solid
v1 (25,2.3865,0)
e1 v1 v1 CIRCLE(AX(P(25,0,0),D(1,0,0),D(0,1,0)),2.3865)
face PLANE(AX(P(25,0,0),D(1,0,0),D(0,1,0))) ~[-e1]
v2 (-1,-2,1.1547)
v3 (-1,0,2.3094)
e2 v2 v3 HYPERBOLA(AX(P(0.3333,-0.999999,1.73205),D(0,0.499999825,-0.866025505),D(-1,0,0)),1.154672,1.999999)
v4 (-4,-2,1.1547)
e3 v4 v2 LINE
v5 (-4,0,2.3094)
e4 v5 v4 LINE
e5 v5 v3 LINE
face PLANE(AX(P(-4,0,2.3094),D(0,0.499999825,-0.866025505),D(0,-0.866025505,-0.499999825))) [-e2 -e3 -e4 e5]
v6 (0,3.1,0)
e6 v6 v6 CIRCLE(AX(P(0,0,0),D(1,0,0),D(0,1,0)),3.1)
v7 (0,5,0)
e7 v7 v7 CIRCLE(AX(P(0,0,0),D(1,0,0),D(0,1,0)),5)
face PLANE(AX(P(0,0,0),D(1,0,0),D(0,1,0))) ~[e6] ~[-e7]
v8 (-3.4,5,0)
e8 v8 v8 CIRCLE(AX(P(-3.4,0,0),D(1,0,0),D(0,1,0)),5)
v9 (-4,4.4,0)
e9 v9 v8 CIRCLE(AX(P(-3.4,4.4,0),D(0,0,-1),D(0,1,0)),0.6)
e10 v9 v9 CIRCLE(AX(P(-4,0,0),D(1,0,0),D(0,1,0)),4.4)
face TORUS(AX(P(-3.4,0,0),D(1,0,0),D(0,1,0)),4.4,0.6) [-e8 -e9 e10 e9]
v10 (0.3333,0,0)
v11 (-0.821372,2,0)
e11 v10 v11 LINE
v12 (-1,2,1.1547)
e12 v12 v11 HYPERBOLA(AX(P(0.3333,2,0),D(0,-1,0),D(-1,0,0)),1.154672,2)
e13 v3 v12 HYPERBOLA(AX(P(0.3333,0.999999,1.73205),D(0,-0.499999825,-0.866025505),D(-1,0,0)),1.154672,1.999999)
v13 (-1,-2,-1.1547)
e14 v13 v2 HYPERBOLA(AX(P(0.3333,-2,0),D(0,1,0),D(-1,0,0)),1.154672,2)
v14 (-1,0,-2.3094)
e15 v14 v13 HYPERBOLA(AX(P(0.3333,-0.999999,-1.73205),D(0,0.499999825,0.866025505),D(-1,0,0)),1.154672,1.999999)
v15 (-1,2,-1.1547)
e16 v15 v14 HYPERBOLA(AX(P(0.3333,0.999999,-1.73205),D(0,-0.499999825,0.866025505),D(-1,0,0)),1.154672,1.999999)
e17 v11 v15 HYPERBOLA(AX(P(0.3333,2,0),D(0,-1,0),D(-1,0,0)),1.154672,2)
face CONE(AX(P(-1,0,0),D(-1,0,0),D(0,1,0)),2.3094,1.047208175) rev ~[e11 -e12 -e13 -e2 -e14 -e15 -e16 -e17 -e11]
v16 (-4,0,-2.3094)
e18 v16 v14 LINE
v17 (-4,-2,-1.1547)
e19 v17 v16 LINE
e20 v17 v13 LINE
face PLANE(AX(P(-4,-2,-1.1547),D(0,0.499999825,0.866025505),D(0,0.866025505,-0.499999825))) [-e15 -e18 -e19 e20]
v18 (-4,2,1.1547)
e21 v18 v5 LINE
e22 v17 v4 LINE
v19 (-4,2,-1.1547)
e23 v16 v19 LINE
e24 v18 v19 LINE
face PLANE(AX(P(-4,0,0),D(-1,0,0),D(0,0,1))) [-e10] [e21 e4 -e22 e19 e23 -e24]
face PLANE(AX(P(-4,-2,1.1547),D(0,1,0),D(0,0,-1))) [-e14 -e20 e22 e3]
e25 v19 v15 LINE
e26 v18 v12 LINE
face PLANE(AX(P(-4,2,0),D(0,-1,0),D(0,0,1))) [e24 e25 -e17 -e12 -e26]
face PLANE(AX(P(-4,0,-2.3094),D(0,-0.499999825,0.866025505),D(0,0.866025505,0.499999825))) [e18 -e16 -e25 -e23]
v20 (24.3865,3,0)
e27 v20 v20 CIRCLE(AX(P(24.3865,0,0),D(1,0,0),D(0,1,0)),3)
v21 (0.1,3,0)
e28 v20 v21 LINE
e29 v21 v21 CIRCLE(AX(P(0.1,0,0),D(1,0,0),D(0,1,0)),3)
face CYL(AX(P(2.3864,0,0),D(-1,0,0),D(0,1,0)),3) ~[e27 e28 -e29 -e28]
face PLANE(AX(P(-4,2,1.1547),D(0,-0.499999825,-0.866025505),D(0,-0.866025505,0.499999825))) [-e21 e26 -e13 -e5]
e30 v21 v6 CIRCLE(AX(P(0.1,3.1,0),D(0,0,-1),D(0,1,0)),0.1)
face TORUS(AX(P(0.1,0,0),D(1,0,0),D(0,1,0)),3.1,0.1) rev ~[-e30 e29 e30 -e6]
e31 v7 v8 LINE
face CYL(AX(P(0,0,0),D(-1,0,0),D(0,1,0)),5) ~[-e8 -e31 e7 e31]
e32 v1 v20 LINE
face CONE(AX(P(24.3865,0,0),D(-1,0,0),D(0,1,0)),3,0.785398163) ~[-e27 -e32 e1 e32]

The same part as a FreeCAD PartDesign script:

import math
import FreeCAD as App
import Part
import Sketcher
Q = App.Units.Quantity


def edges_at(feature, points):
    """Names of the edges that pass closest to the given points."""
    edges = feature.Shape.Edges
    near = lambda p: min(range(len(edges)), key=lambda i: edges[i].distToShape(Part.Vertex(*p))[0])
    return sorted({f"Edge{near(p) + 1}" for p in points})

doc = App.newDocument("Part")
body = doc.addObject("PartDesign::Body", "Body")

sketch1 = body.newObject("Sketcher::SketchObject", "Sketch")
sketch1.AttachmentSupport = (doc.getObject("XY_Plane"), [""])
sketch1.MapMode = "FlatFace"
sketch1.addGeometry(Part.LineSegment(App.Vector(0.3333, 0, 0), App.Vector(25, 0, 0)), False)
sketch1.addGeometry(Part.LineSegment(App.Vector(25, 0, 0), App.Vector(25, 3, 0)), False)
sketch1.addGeometry(Part.LineSegment(App.Vector(25, 3, 0), App.Vector(0, 3, 0)), False)
sketch1.addGeometry(Part.LineSegment(App.Vector(0, 3, 0), App.Vector(0, 5, 0)), False)
sketch1.addGeometry(Part.LineSegment(App.Vector(0, 5, 0), App.Vector(-4, 5, 0)), False)
sketch1.addGeometry(Part.LineSegment(App.Vector(-4, 5, 0), App.Vector(-4, 2.3094, 0)), False)
sketch1.addGeometry(Part.LineSegment(App.Vector(-4, 2.3094, 0), App.Vector(-1, 2.3094, 0)), False)
sketch1.addGeometry(Part.LineSegment(App.Vector(-1, 2.3094, 0), App.Vector(0.3333, 0, 0)), False)
sketch1.addConstraint(Sketcher.Constraint("Coincident", 0, 2, 1, 1))
sketch1.addConstraint(Sketcher.Constraint("Coincident", 1, 2, 2, 1))
sketch1.addConstraint(Sketcher.Constraint("Coincident", 2, 2, 3, 1))
sketch1.addConstraint(Sketcher.Constraint("Coincident", 3, 2, 4, 1))
sketch1.addConstraint(Sketcher.Constraint("Coincident", 4, 2, 5, 1))
sketch1.addConstraint(Sketcher.Constraint("Coincident", 5, 2, 6, 1))
sketch1.addConstraint(Sketcher.Constraint("Coincident", 6, 2, 7, 1))
sketch1.addConstraint(Sketcher.Constraint("Coincident", 7, 2, 0, 1))
sketch1.addConstraint(Sketcher.Constraint("Horizontal", 0))
sketch1.addConstraint(Sketcher.Constraint("Vertical", 1))
sketch1.addConstraint(Sketcher.Constraint("Horizontal", 2))
sketch1.addConstraint(Sketcher.Constraint("Vertical", 3))
sketch1.addConstraint(Sketcher.Constraint("Horizontal", 4))
sketch1.addConstraint(Sketcher.Constraint("Vertical", 5))
sketch1.addConstraint(Sketcher.Constraint("Horizontal", 6))
sketch1.addConstraint(Sketcher.Constraint("PointOnObject", 0, 2, -1))
sketch1.addConstraint(Sketcher.Constraint("PointOnObject", 2, 2, -2))
sketch1.addConstraint(Sketcher.Constraint("Equal", 6, 1))
sketch1.addConstraint(Sketcher.Constraint("DistanceX", 2, 2, 2, 1, Q("25 mm")))
sketch1.addConstraint(Sketcher.Constraint("DistanceX", 4, 2, 4, 1, Q("4 mm")))
sketch1.addConstraint(Sketcher.Constraint("DistanceX", 6, 1, 6, 2, Q("3 mm")))
sketch1.addConstraint(Sketcher.Constraint("DistanceY", 3, 1, 3, 2, Q("2 mm")))
sketch1.addConstraint(Sketcher.Constraint("Angle", 7, Q("-60.0006 deg")))
sketch1.addConstraint(Sketcher.Constraint("DistanceX", 0, 1, 0, 2, Q("24.6667 mm")))
revolution = body.newObject("PartDesign::Revolution", "Revolution")
revolution.Profile = sketch1
revolution.ReferenceAxis = (sketch1, ["H_Axis"])
revolution.Angle = 360

sketch2 = body.newObject("Sketcher::SketchObject", "Sketch001")
sketch2.AttachmentSupport = (doc.getObject("YZ_Plane"), [""])
sketch2.MapMode = "FlatFace"
sketch2.AttachmentOffset = App.Placement(App.Vector(0, 0, -4), App.Rotation())
sketch2.addGeometry(Part.LineSegment(App.Vector(2, 1.1547, 0), App.Vector(0, 2.3094, 0)), False)
sketch2.addGeometry(Part.ArcOfCircle(Part.Circle(App.Vector(0, 0, 0), App.Vector(0, 0, 1), 2.3094), math.radians(29.999988), math.radians(90)), False)
sketch2.addGeometry(Part.ArcOfCircle(Part.Circle(App.Vector(0, 0, 0), App.Vector(0, 0, 1), 2.3094), math.radians(90), math.radians(150.000012)), False)
sketch2.addGeometry(Part.LineSegment(App.Vector(0, 2.3094, 0), App.Vector(-2, 1.1547, 0)), False)
sketch2.addGeometry(Part.ArcOfCircle(Part.Circle(App.Vector(0, 0, 0), App.Vector(0, 0, 1), 2.3094), math.radians(-29.999988), math.radians(29.999988)), False)
sketch2.addGeometry(Part.LineSegment(App.Vector(2, -1.1547, 0), App.Vector(2, 1.1547, 0)), False)
sketch2.addGeometry(Part.LineSegment(App.Vector(-2, 1.1547, 0), App.Vector(-2, -1.1547, 0)), False)
sketch2.addGeometry(Part.ArcOfCircle(Part.Circle(App.Vector(0, 0, 0), App.Vector(0, 0, 1), 2.3094), math.radians(150.000012), math.radians(209.999988)), False)
sketch2.addGeometry(Part.LineSegment(App.Vector(-2, -1.1547, 0), App.Vector(0, -2.3094, 0)), False)
sketch2.addGeometry(Part.ArcOfCircle(Part.Circle(App.Vector(0, 0, 0), App.Vector(0, 0, 1), 2.3094), math.radians(-150.000012), math.radians(-90)), False)
sketch2.addGeometry(Part.ArcOfCircle(Part.Circle(App.Vector(0, 0, 0), App.Vector(0, 0, 1), 2.3094), math.radians(-90), math.radians(-29.999988)), False)
sketch2.addGeometry(Part.LineSegment(App.Vector(0, -2.3094, 0), App.Vector(2, -1.1547, 0)), False)
sketch2.addConstraint(Sketcher.Constraint("Coincident", 0, 1, 1, 1))
sketch2.addConstraint(Sketcher.Constraint("Coincident", 1, 2, 0, 2))
sketch2.addConstraint(Sketcher.Constraint("Coincident", 2, 1, 3, 1))
sketch2.addConstraint(Sketcher.Constraint("Coincident", 3, 2, 2, 2))
sketch2.addConstraint(Sketcher.Constraint("Coincident", 4, 1, 5, 1))
sketch2.addConstraint(Sketcher.Constraint("Coincident", 5, 2, 4, 2))
sketch2.addConstraint(Sketcher.Constraint("Coincident", 6, 1, 7, 1))
sketch2.addConstraint(Sketcher.Constraint("Coincident", 7, 2, 6, 2))
sketch2.addConstraint(Sketcher.Constraint("Coincident", 8, 1, 9, 1))
sketch2.addConstraint(Sketcher.Constraint("Coincident", 9, 2, 8, 2))
sketch2.addConstraint(Sketcher.Constraint("Coincident", 10, 1, 11, 1))
sketch2.addConstraint(Sketcher.Constraint("Coincident", 11, 2, 10, 2))
sketch2.addConstraint(Sketcher.Constraint("Vertical", 5))
sketch2.addConstraint(Sketcher.Constraint("Vertical", 6))
sketch2.addConstraint(Sketcher.Constraint("Coincident", 1, 3, -1, 1))
sketch2.addConstraint(Sketcher.Constraint("Coincident", 2, 3, -1, 1))
sketch2.addConstraint(Sketcher.Constraint("Coincident", 4, 3, -1, 1))
sketch2.addConstraint(Sketcher.Constraint("Coincident", 7, 3, -1, 1))
sketch2.addConstraint(Sketcher.Constraint("Coincident", 9, 3, -1, 1))
sketch2.addConstraint(Sketcher.Constraint("Coincident", 10, 3, -1, 1))
sketch2.addConstraint(Sketcher.Constraint("Coincident", 2, 1, 1, 2))
sketch2.addConstraint(Sketcher.Constraint("Coincident", 5, 2, 0, 1))
sketch2.addConstraint(Sketcher.Constraint("Coincident", 6, 1, 3, 2))
sketch2.addConstraint(Sketcher.Constraint("Coincident", 8, 1, 7, 2))
sketch2.addConstraint(Sketcher.Constraint("Coincident", 10, 1, 9, 2))
sketch2.addConstraint(Sketcher.Constraint("PointOnObject", 1, 2, -2))
sketch2.addConstraint(Sketcher.Constraint("PointOnObject", 9, 2, -2))
sketch2.addConstraint(Sketcher.Constraint("Parallel", 0, 8))
sketch2.addConstraint(Sketcher.Constraint("Parallel", 3, 11))
sketch2.addConstraint(Sketcher.Constraint("Angle", 0, Q("150 deg")))
sketch2.addConstraint(Sketcher.Constraint("DistanceX", -1, 1, 0, 1, Q("2 mm")))
pad1 = body.newObject("PartDesign::Pad", "Pad")
pad1.Profile = sketch2
pad1.Length = 3.1786
doc.recompute()

fillet = body.newObject("PartDesign::Fillet", "Fillet")
fillet.Base = (pad1, edges_at(pad1, [(-4, -5, 0)]))
fillet.Radius = 0.6
doc.recompute()

chamfer = body.newObject("PartDesign::Chamfer", "Chamfer")
chamfer.Base = (fillet, edges_at(fillet, [(25, -3, 0)]))
chamfer.ChamferType = "Two distances"
chamfer.Size = 0.6135
chamfer.Size2 = 0.6135
doc.recompute()

fillet2 = body.newObject("PartDesign::Fillet", "Fillet001")
fillet2.Base = (chamfer, edges_at(chamfer, [(0, -3, 0)]))
fillet2.Radius = 0.1

doc.recompute()
